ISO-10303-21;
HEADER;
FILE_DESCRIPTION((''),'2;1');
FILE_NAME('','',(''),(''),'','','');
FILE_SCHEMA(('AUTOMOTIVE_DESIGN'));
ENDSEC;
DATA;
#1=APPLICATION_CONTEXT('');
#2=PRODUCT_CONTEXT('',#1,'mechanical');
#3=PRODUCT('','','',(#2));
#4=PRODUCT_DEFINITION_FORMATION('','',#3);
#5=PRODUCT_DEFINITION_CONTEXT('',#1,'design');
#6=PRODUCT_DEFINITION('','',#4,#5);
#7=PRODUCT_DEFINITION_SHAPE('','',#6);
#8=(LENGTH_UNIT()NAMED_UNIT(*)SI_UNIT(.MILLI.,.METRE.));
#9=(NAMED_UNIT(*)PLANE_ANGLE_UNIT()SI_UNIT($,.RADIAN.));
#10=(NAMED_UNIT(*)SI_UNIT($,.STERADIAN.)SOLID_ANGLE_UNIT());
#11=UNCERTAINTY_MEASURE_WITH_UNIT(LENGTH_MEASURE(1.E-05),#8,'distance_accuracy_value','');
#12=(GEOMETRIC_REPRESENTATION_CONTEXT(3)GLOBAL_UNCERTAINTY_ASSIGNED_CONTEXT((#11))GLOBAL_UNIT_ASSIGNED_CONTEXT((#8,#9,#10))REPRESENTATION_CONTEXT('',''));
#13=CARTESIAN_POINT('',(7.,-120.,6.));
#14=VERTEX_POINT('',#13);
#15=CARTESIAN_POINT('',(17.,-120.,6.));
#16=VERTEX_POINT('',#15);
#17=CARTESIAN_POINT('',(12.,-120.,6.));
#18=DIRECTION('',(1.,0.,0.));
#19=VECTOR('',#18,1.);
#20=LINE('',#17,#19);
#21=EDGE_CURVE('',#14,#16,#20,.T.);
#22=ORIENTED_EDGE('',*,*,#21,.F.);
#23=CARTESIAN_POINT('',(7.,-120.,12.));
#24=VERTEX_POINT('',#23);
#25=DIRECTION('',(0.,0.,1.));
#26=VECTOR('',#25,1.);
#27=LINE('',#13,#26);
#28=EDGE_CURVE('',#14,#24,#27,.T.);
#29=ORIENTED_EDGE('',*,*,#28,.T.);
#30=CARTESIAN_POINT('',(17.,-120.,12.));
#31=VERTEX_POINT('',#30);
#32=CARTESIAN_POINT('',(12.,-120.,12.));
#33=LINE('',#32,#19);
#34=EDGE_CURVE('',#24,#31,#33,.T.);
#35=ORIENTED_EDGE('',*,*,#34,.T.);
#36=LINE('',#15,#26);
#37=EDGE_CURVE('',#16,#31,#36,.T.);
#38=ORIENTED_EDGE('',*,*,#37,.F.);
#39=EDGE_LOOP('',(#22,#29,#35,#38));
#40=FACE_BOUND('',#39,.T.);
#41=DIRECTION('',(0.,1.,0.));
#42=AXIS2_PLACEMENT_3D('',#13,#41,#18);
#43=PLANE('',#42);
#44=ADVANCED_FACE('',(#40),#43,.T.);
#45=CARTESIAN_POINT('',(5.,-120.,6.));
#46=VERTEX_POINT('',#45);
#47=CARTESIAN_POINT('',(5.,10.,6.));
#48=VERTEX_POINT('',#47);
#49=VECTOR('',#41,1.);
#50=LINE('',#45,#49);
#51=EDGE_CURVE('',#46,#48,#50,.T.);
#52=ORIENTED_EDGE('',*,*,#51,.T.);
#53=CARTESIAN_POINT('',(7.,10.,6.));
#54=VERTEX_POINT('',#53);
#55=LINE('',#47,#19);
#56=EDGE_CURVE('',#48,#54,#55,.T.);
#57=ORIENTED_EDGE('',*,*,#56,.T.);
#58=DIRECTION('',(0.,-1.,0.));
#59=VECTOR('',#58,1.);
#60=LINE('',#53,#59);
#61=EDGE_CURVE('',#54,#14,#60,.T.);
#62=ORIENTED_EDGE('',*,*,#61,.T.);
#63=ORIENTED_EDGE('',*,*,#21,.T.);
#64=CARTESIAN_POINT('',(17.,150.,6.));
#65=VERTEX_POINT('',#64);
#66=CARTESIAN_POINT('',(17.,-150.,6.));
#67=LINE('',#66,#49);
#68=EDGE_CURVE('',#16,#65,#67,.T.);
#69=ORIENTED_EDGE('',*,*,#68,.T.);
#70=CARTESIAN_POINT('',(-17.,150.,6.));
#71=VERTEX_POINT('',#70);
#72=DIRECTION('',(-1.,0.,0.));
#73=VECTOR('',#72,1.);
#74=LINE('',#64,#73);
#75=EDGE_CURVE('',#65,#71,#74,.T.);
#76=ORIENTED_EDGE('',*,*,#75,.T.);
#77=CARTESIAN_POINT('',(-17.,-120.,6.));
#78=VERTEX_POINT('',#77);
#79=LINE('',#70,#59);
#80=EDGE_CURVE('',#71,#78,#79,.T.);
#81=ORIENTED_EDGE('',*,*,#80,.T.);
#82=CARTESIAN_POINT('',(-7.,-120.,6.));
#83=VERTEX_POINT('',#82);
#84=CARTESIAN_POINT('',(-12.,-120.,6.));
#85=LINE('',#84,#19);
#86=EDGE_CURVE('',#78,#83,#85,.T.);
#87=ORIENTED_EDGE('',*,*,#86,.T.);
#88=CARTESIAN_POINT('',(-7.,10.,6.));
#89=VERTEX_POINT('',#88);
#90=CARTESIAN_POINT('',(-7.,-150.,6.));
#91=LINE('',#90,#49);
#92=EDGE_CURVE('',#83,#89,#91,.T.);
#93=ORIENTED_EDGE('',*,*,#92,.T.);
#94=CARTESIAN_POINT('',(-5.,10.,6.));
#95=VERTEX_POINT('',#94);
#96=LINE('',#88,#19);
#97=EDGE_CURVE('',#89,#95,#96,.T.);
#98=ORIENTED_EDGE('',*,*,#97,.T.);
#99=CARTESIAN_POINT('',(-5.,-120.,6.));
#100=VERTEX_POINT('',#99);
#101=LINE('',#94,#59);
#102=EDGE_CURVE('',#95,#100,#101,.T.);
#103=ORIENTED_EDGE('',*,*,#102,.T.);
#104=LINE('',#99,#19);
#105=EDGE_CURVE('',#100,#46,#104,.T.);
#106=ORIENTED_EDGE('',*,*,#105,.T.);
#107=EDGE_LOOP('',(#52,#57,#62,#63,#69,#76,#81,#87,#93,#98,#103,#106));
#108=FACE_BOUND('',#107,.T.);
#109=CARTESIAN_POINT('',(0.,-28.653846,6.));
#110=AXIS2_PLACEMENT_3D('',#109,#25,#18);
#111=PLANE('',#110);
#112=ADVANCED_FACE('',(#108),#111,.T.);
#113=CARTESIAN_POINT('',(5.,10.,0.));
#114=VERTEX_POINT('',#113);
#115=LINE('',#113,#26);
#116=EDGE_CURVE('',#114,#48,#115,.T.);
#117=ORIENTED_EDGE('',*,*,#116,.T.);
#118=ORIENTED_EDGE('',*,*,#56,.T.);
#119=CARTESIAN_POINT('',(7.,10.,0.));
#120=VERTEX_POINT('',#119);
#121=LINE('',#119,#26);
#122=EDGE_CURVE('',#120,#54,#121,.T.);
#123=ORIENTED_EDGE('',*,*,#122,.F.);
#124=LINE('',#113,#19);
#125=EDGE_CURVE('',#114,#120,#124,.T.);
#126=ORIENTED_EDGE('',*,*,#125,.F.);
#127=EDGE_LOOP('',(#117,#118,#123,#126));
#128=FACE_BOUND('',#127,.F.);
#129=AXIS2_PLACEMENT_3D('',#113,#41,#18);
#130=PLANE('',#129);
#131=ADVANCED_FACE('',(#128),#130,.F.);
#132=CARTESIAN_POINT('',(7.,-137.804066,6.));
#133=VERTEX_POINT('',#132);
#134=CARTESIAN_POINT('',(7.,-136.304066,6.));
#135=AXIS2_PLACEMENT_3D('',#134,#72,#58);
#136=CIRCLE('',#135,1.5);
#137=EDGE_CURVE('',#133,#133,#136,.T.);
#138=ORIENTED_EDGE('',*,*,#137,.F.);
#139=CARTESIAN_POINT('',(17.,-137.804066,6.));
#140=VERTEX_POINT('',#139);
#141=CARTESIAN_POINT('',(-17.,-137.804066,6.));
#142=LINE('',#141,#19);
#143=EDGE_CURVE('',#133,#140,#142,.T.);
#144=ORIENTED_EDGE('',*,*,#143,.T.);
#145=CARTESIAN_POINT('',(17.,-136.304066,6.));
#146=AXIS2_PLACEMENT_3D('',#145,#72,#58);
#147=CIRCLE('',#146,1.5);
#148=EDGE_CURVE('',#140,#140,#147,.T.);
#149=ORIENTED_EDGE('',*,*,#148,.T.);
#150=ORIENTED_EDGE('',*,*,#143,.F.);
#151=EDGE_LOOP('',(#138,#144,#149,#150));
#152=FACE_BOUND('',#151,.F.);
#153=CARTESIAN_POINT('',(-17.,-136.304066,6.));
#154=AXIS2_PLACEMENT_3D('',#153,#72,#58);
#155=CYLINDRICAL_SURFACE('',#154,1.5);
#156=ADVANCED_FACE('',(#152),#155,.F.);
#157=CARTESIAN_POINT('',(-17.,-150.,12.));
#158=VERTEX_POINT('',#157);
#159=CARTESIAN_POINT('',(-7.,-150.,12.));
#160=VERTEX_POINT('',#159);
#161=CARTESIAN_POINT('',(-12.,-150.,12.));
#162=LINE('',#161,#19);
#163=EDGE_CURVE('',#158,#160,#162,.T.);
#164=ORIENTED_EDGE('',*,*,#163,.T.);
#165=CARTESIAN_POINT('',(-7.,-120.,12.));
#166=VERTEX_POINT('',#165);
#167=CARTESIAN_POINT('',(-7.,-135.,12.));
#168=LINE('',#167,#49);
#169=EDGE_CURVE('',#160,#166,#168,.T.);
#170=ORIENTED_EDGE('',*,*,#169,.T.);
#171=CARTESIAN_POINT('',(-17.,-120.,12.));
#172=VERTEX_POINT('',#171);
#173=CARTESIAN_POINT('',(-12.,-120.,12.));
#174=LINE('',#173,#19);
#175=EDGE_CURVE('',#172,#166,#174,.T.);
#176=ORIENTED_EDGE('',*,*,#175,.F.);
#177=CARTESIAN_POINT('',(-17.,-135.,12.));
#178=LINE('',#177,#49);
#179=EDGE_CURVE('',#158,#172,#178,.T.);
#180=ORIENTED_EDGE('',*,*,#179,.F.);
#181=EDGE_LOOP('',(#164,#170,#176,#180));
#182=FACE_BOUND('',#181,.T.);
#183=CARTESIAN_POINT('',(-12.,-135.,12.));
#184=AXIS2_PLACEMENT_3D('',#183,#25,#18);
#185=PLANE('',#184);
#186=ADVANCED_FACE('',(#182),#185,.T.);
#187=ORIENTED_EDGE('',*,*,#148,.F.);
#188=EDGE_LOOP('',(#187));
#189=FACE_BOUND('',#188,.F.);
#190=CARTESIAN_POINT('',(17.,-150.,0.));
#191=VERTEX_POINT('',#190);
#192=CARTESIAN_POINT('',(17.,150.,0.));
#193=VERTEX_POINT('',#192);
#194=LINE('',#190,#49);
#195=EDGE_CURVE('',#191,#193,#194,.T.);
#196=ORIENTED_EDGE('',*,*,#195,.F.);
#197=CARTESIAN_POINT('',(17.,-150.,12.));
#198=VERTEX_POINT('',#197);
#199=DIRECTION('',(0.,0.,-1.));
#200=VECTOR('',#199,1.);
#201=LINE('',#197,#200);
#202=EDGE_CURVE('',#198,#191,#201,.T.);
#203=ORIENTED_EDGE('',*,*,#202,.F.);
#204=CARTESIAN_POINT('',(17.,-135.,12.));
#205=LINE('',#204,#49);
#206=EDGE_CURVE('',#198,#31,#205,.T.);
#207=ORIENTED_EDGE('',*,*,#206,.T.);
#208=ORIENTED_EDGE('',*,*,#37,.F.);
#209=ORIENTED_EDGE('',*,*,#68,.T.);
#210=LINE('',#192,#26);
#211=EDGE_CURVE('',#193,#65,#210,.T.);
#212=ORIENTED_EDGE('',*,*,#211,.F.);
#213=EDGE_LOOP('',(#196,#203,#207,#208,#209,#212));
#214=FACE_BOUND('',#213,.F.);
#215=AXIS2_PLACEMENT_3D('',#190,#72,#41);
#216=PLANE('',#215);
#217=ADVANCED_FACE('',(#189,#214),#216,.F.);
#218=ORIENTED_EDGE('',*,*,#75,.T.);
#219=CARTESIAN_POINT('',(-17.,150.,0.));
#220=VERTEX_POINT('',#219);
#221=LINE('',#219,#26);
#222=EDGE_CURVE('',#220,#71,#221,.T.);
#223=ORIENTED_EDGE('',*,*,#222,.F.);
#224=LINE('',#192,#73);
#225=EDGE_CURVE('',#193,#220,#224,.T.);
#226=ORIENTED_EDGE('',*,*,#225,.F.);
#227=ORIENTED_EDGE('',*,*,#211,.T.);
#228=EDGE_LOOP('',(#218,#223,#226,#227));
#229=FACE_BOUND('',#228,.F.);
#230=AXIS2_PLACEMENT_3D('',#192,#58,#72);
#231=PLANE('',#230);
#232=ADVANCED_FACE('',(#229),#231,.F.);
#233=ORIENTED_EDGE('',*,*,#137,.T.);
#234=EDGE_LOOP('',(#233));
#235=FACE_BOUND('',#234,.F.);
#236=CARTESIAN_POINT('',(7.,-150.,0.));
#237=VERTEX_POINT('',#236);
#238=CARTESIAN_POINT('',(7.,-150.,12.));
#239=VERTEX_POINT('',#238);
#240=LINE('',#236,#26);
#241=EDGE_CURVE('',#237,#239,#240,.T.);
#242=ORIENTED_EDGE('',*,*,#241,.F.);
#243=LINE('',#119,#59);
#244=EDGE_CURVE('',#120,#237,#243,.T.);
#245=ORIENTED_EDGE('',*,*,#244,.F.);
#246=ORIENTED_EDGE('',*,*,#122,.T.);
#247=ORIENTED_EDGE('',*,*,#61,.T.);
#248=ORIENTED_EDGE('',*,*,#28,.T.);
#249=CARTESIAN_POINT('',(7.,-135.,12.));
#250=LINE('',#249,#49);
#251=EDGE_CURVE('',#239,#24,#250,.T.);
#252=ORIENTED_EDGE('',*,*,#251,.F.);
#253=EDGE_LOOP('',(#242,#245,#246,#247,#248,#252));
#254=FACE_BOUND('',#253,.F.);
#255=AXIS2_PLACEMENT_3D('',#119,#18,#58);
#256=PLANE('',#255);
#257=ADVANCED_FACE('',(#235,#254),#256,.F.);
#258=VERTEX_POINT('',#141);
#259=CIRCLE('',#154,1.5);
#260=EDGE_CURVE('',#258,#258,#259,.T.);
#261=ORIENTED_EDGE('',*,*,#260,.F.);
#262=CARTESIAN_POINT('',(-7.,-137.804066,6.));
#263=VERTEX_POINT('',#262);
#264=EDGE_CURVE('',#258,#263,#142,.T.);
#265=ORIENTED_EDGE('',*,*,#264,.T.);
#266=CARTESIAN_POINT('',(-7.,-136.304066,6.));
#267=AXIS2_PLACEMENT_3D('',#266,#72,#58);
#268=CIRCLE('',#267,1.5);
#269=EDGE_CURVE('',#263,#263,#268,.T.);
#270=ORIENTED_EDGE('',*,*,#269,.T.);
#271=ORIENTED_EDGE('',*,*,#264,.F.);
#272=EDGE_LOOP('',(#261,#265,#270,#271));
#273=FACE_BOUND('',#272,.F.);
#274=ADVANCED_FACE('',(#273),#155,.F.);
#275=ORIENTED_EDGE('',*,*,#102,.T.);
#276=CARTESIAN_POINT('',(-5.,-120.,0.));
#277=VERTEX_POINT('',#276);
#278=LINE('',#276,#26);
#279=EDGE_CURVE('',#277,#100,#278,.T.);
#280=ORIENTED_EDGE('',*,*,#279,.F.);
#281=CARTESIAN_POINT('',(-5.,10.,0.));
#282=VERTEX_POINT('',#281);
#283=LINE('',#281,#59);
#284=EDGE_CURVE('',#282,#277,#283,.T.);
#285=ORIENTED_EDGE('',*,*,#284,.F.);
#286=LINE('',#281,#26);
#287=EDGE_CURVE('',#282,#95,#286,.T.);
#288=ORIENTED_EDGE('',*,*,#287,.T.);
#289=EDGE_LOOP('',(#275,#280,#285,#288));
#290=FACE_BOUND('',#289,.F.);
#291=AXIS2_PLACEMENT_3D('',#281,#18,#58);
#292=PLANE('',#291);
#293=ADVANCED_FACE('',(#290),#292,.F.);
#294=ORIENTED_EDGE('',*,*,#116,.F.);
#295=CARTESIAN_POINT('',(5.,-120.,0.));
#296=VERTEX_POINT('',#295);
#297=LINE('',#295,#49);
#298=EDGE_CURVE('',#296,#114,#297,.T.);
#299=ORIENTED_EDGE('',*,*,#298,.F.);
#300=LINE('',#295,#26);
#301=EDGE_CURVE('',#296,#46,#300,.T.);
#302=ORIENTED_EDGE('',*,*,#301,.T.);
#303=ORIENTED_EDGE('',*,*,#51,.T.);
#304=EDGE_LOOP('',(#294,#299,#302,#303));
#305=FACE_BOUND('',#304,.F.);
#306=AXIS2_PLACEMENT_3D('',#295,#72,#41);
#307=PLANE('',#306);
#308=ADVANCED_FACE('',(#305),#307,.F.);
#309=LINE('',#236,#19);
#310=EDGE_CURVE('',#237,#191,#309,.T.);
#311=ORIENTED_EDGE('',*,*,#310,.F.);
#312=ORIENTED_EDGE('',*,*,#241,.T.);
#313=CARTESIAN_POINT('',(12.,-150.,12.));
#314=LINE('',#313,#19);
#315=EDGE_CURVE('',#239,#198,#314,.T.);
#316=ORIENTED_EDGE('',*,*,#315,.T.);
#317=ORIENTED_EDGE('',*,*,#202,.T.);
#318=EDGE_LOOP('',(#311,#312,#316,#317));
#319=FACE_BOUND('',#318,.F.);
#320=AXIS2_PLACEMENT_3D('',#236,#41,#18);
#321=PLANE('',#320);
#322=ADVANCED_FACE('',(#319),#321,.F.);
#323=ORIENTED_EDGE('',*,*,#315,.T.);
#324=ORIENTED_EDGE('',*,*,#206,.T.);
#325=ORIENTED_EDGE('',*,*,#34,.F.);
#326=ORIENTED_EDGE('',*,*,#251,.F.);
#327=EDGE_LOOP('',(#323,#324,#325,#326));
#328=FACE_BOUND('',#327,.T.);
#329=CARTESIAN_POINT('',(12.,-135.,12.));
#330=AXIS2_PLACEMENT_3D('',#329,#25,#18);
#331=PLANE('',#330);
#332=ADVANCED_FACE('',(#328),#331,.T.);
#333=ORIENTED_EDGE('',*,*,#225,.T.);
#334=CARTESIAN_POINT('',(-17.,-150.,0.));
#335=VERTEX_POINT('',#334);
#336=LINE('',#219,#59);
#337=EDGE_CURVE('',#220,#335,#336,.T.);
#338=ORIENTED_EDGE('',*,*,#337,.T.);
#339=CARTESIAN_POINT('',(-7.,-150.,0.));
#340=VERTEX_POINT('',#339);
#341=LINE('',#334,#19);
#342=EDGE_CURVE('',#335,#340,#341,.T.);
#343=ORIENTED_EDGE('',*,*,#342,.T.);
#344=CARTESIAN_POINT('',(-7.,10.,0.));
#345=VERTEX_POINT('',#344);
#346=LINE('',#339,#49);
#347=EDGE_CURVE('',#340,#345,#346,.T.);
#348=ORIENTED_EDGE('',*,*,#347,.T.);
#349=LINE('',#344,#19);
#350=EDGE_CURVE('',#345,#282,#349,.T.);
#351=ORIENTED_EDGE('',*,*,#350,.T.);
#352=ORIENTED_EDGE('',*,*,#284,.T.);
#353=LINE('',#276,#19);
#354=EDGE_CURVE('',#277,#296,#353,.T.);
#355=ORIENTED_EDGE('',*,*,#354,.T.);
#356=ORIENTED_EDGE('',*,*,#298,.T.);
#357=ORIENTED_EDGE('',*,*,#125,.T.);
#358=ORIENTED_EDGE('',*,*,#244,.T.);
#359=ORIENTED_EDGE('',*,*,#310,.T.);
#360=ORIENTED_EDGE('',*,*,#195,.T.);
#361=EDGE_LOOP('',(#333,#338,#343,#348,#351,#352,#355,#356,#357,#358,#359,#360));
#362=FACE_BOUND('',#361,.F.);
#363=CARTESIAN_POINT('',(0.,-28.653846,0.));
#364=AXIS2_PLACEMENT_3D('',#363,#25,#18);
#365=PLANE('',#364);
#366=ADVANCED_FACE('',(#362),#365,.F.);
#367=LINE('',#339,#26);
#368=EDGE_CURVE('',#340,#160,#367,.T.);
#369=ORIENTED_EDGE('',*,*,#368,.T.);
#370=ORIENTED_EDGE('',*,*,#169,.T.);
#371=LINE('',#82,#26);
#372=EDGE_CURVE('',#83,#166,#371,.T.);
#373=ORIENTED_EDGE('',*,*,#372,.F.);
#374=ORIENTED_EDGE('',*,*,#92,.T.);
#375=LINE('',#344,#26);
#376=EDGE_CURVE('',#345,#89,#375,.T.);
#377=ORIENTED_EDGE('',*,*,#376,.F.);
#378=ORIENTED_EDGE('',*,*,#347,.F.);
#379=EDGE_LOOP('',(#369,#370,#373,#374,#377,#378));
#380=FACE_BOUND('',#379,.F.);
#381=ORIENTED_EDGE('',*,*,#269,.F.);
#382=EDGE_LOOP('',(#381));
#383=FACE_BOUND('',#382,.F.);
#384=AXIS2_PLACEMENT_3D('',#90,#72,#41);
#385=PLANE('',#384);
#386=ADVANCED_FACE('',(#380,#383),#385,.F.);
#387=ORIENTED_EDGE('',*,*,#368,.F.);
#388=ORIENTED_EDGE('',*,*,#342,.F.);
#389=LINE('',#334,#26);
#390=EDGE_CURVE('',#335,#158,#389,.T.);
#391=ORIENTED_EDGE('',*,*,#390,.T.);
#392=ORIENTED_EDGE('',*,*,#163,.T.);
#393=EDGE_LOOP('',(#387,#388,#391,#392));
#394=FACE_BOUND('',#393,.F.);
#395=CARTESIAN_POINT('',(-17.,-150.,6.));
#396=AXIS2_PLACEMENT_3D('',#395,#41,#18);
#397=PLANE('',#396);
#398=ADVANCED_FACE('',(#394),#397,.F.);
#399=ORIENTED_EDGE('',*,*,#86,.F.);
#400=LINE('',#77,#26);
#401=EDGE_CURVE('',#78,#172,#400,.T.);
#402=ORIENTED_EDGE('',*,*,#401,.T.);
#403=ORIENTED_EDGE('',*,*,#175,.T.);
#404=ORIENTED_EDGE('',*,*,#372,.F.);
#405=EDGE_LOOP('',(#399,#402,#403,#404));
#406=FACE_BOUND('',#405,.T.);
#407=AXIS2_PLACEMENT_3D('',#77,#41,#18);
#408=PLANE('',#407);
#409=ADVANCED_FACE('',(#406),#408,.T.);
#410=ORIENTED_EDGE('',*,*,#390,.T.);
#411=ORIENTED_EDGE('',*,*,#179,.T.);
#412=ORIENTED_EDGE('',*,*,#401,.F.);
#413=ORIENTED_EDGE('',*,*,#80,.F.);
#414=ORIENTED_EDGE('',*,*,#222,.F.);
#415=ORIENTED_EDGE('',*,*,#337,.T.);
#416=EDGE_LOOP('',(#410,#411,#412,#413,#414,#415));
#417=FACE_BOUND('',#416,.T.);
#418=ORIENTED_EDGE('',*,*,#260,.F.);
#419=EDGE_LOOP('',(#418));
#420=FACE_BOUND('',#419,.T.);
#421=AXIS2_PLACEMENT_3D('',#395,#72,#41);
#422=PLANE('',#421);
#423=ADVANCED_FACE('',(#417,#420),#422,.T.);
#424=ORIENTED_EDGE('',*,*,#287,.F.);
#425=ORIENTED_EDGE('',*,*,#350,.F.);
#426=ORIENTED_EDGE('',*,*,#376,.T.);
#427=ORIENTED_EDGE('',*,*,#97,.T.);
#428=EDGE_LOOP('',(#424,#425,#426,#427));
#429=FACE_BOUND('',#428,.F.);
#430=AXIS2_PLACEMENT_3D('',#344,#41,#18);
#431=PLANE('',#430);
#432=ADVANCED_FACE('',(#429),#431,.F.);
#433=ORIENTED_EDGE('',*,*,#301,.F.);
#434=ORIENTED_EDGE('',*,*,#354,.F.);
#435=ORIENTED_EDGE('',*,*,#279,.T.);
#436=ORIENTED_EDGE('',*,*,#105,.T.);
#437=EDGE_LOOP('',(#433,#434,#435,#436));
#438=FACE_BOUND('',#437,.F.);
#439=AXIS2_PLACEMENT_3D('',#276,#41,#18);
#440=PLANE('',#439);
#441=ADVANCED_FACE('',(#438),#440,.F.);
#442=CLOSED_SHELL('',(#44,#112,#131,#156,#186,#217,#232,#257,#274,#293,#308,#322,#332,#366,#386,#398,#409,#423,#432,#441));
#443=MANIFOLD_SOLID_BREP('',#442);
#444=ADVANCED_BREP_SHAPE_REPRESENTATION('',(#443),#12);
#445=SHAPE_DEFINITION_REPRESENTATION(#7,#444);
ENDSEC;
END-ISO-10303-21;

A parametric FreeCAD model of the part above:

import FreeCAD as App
import Part
import Sketcher
from FreeCAD import Vector
Q = App.Units.Quantity


def add_polygon(sketch, points):
    """Adds a closed chain of lines whose ends are joined by coincident constraints."""
    first, n = sketch.GeometryCount, len(points)
    for a, b in zip(points, points[1:] + points[:1]):
        sketch.addGeometry(Part.LineSegment(App.Vector(*a, 0), App.Vector(*b, 0)), False)
    for i in range(n):
        sketch.addConstraint(Sketcher.Constraint("Coincident", first + i, 2, first + (i + 1) % n, 1))

doc = App.newDocument("Part")
body = doc.addObject("PartDesign::Body", "Body")

# Sketch on XY plane
sketch1 = body.newObject("Sketcher::SketchObject", "Sketch")
sketch1.AttachmentSupport = (doc.getObject("XY_Plane"), [""])
sketch1.MapMode = "FlatFace"
add_polygon(sketch1, [(7, -150), (17, -150), (17, 150), (-17, 150), (-17, -150), (-7, -150), (-7, 10), (-5, 10), (-5, -120), (5, -120), (5, 10), (7, 10)])  # lines 0-11
sketch1.addConstraint([
    Sketcher.Constraint("Horizontal", 0),
    Sketcher.Constraint("Vertical", 1),
    Sketcher.Constraint("Horizontal", 2),
    Sketcher.Constraint("Vertical", 3),
    Sketcher.Constraint("Horizontal", 4),
    Sketcher.Constraint("Vertical", 5),
    Sketcher.Constraint("Horizontal", 6),
    Sketcher.Constraint("Vertical", 7),
    Sketcher.Constraint("Horizontal", 8),
    Sketcher.Constraint("Vertical", 9),
    Sketcher.Constraint("Horizontal", 10),
    Sketcher.Constraint("Vertical", 11),
    Sketcher.Constraint("Symmetric", 0, 2, 2, 2, -1, 1),
    Sketcher.Constraint("Symmetric", 6, 2, 9, 2, -2),
    Sketcher.Constraint("Symmetric", 4, 2, 11, 2, -2),
    Sketcher.Constraint("Equal", 4, 8),
    Sketcher.Constraint("DistanceX", 0, 1, 0, 2, Q("10 mm")),
    Sketcher.Constraint("DistanceX", 2, 2, 2, 1, Q("34 mm")),
    Sketcher.Constraint("DistanceY", 1, 1, 1, 2, Q("300 mm")),
    Sketcher.Constraint("DistanceY", 5, 1, 5, 2, Q("160 mm")),
    Sketcher.Constraint("DistanceY", 7, 2, 7, 1, Q("130 mm")),
])
pad1 = body.newObject("PartDesign::Pad", "Pad")
pad1.Profile = sketch1
pad1.Length = 6

# Sketch on XY plane
sketch2 = body.newObject("Sketcher::SketchObject", "Sketch001")
sketch2.AttachmentSupport = (doc.getObject("XY_Plane"), [""])
sketch2.MapMode = "FlatFace"
sketch2.AttachmentOffset = App.Placement(Vector(0, 0, 6), App.Rotation())
add_polygon(sketch2, [(-17, -120), (-17, -150), (-7, -150), (-7, -120)])  # lines 0-3
add_polygon(sketch2, [(7, -120), (7, -150), (17, -150), (17, -120)])  # lines 4-7
sketch2.addConstraint([
    Sketcher.Constraint("Vertical", 0),
    Sketcher.Constraint("Horizontal", 1),
    Sketcher.Constraint("Vertical", 2),
    Sketcher.Constraint("Horizontal", 3),
    Sketcher.Constraint("Vertical", 4),
    Sketcher.Constraint("Horizontal", 5),
    Sketcher.Constraint("Vertical", 6),
    Sketcher.Constraint("Horizontal", 7),
    Sketcher.Constraint("Symmetric", 1, 2, 4, 2, -2),
    Sketcher.Constraint("Symmetric", 3, 2, 6, 2, -2),
    Sketcher.Constraint("DistanceX", 1, 1, 1, 2, Q("10 mm")),
    Sketcher.Constraint("DistanceY", 0, 2, 0, 1, Q("30 mm")),
    Sketcher.Constraint("DistanceX", 0, 2, -1, 1, Q("17 mm")),
    Sketcher.Constraint("DistanceY", 0, 2, -1, 1, Q("150 mm")),
])
pad2 = body.newObject("PartDesign::Pad", "Pad001")
pad2.Profile = sketch2
pad2.Length = 6

# Sketch on YZ plane
sketch3 = body.newObject("Sketcher::SketchObject", "Sketch002")
sketch3.AttachmentSupport = (doc.getObject("YZ_Plane"), [""])
sketch3.MapMode = "FlatFace"
sketch3.AttachmentOffset = App.Placement(Vector(0, 0, -17), App.Rotation())
sketch3.addGeometry(Part.Circle(Vector(-136.3, 6, 0), Vector(0, 0, 1), 1.5), False)
sketch3.addConstraint([
    Sketcher.Constraint("Diameter", 0, Q("3 mm")),
    Sketcher.Constraint("DistanceY", -1, 1, 0, 3, Q("6 mm")),
    Sketcher.Constraint("DistanceX", 0, 3, -1, 1, Q("136.304066 mm")),
])
pocket1 = body.newObject("PartDesign::Pocket", "Pocket")
pocket1.Profile = sketch3
pocket1.Type = "ThroughAll"
pocket1.Reversed = True

doc.recompute()
